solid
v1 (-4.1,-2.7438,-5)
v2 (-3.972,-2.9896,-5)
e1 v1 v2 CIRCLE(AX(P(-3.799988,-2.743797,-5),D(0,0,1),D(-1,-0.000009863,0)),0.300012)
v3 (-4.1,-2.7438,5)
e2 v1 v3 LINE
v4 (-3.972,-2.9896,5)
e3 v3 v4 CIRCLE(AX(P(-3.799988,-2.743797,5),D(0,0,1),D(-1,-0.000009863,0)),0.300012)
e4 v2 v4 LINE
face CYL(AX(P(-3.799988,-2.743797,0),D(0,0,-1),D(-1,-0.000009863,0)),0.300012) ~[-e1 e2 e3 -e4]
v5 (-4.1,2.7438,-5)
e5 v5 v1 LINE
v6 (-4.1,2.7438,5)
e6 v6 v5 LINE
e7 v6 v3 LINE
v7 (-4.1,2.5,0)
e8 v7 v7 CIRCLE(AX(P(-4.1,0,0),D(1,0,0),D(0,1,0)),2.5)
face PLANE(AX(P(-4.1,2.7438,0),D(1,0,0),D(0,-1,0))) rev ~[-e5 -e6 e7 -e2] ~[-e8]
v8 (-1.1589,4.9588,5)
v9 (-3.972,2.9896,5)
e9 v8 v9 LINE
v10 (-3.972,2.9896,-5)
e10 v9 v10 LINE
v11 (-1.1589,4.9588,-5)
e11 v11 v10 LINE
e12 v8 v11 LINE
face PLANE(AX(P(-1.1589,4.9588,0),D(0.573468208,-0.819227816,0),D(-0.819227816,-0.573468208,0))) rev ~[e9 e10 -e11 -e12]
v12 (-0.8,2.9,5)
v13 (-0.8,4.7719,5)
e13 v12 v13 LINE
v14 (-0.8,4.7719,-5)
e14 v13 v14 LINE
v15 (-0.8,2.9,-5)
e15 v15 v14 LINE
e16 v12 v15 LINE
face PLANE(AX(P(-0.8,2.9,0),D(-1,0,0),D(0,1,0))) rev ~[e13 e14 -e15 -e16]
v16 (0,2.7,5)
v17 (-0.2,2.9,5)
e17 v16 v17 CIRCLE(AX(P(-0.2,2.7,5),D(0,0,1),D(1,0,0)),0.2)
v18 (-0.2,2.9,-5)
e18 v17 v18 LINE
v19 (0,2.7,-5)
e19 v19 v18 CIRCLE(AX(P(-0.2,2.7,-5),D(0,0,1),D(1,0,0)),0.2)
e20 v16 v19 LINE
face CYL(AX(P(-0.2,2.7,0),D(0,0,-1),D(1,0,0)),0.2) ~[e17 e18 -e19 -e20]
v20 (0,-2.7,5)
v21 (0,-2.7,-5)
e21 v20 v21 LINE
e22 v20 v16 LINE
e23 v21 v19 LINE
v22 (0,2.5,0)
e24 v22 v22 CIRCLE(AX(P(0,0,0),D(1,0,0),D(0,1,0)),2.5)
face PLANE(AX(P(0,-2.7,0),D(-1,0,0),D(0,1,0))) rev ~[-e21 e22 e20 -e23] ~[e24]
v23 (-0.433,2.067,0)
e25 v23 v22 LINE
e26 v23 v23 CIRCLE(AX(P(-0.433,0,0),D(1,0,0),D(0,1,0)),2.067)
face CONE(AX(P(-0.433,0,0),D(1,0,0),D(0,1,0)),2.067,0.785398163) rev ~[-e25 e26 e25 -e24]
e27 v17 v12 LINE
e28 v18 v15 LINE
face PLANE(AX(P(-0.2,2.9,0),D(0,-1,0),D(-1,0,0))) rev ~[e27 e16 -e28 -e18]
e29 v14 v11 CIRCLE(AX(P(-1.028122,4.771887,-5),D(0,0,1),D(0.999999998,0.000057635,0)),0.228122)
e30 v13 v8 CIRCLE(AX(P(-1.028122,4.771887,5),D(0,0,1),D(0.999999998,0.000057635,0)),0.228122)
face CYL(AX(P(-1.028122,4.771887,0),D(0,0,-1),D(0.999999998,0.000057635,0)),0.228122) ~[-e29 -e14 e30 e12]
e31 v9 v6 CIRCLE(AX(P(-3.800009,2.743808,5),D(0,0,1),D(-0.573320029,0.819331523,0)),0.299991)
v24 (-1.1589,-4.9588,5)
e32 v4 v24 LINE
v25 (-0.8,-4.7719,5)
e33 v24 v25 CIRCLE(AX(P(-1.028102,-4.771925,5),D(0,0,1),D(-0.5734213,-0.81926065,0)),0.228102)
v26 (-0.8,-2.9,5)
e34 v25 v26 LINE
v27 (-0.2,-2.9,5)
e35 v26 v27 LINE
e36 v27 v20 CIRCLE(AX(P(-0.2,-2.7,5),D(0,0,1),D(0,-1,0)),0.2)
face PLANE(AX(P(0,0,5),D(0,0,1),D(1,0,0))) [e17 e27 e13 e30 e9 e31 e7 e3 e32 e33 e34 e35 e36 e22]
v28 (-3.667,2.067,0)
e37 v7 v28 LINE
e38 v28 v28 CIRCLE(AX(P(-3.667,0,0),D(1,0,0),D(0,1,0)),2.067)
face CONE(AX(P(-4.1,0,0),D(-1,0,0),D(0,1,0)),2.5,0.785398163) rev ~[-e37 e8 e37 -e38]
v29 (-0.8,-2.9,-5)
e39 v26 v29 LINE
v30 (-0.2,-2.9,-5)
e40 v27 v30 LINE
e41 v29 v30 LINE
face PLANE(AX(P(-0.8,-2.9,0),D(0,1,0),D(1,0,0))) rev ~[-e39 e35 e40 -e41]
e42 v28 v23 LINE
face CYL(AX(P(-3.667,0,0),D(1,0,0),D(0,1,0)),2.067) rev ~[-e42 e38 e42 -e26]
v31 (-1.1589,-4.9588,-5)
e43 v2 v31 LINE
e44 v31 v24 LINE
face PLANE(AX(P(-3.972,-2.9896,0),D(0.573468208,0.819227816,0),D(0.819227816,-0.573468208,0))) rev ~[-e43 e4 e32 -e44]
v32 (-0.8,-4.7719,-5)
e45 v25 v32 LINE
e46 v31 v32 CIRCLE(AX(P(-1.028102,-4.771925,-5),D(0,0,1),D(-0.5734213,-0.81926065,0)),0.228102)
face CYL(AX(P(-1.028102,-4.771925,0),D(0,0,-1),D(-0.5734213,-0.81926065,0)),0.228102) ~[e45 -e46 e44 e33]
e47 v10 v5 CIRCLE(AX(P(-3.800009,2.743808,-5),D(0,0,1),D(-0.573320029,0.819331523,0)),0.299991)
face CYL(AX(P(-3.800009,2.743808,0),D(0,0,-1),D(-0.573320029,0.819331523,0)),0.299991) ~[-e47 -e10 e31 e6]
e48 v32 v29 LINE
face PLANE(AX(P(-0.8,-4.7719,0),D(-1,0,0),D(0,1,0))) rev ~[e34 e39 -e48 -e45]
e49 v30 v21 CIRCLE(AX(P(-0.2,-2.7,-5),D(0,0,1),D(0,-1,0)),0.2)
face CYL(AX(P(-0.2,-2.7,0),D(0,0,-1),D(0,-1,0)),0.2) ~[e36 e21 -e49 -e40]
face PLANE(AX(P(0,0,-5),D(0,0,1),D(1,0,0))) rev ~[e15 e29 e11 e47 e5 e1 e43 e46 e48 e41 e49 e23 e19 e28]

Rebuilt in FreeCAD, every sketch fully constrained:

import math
import FreeCAD as App
import Part
import Sketcher

V = App.Vector

doc = App.newDocument("Part")
body = doc.addObject("PartDesign::Body", "Body")

sketch1 = body.newObject("Sketcher::SketchObject", "Sketch")
sketch1.AttachmentSupport = (doc.getObject("XY_Plane"), [""])
sketch1.MapMode = "FlatFace"
sketch1.addGeometry(Part.LineSegment(V(-4.1, 2.7438, 0), V(-4.1, -2.7438, 0)), False)
sketch1.addGeometry(Part.ArcOfCircle(Part.Circle(V(-3.8, -2.7438, 0), V(0, 0, 1), 0.3), math.radians(180), math.radians(235.017367)), False)
sketch1.addGeometry(Part.LineSegment(V(-3.972, -2.9896, 0), V(-1.1589, -4.9588, 0)), False)
sketch1.addGeometry(Part.ArcOfCircle(Part.Circle(V(-1.0281, -4.7719, 0), V(0, 0, 1), 0.228123), math.radians(-124.985847), math.radians(0)), False)
sketch1.addGeometry(Part.LineSegment(V(-0.8, -4.7719, 0), V(-0.8, -2.9, 0)), False)
sketch1.addGeometry(Part.LineSegment(V(-0.8, -2.9, 0), V(-0.2, -2.9, 0)), False)
sketch1.addGeometry(Part.ArcOfCircle(Part.Circle(V(-0.2, -2.7, 0), V(0, 0, 1), 0.2), math.radians(-90), math.radians(0)), False)
sketch1.addGeometry(Part.LineSegment(V(0, -2.7, 0), V(0, 2.7, 0)), False)
sketch1.addGeometry(Part.ArcOfCircle(Part.Circle(V(-0.2, 2.7, 0), V(0, 0, 1), 0.2), math.radians(0), math.radians(90)), False)
sketch1.addGeometry(Part.LineSegment(V(-0.2, 2.9, 0), V(-0.8, 2.9, 0)), False)
sketch1.addGeometry(Part.LineSegment(V(-0.8, 2.9, 0), V(-0.8, 4.7719, 0)), False)
sketch1.addGeometry(Part.ArcOfCircle(Part.Circle(V(-1.0281, 4.7719, 0), V(0, 0, 1), 0.2281), math.radians(0), math.radians(124.985847)), False)
sketch1.addGeometry(Part.LineSegment(V(-1.1589, 4.9588, 0), V(-3.972, 2.9896, 0)), False)
sketch1.addGeometry(Part.ArcOfCircle(Part.Circle(V(-3.8, 2.7438, 0), V(0, 0, 1), 0.300003), math.radians(124.982633), math.radians(180)), False)
sketch1.addConstraint(Sketcher.Constraint("Tangent", 0, 2, 1, 1))
sketch1.addConstraint(Sketcher.Constraint("Tangent", 1, 2, 2, 1))
sketch1.addConstraint(Sketcher.Constraint("Tangent", 2, 2, 3, 1))
sketch1.addConstraint(Sketcher.Constraint("Tangent", 3, 2, 4, 1))
sketch1.addConstraint(Sketcher.Constraint("Coincident", 4, 2, 5, 1))
sketch1.addConstraint(Sketcher.Constraint("Tangent", 5, 2, 6, 1))
sketch1.addConstraint(Sketcher.Constraint("Tangent", 6, 2, 7, 1))
sketch1.addConstraint(Sketcher.Constraint("Tangent", 7, 2, 8, 1))
sketch1.addConstraint(Sketcher.Constraint("Tangent", 8, 2, 9, 1))
sketch1.addConstraint(Sketcher.Constraint("Coincident", 9, 2, 10, 1))
sketch1.addConstraint(Sketcher.Constraint("Tangent", 10, 2, 11, 1))
sketch1.addConstraint(Sketcher.Constraint("Tangent", 11, 2, 12, 1))
sketch1.addConstraint(Sketcher.Constraint("Tangent", 12, 2, 13, 1))
sketch1.addConstraint(Sketcher.Constraint("Tangent", 13, 2, 0, 1))
sketch1.addConstraint(Sketcher.Constraint("Vertical", 0))
sketch1.addConstraint(Sketcher.Constraint("Vertical", 4))
sketch1.addConstraint(Sketcher.Constraint("Horizontal", 5))
sketch1.addConstraint(Sketcher.Constraint("Vertical", 7))
sketch1.addConstraint(Sketcher.Constraint("Horizontal", 9))
sketch1.addConstraint(Sketcher.Constraint("Vertical", 10))
sketch1.addConstraint(Sketcher.Constraint("Equal", 6, 8))
sketch1.addConstraint(Sketcher.Constraint("Equal", 3, 11))
sketch1.addConstraint(Sketcher.Constraint("Equal", 1, 13))
sketch1.addConstraint(Sketcher.Constraint("Symmetric", 6, 2, 7, 2, -1, 1))
sketch1.addConstraint(Sketcher.Constraint("Symmetric", 3, 3, 11, 3, -1))
sketch1.addConstraint(Sketcher.Constraint("Vertical", 2, 2, 11, 2))
sketch1.addConstraint(Sketcher.Constraint("Radius", 1, 0.3))
sketch1.addConstraint(Sketcher.Constraint("Radius", 6, 0.2))
sketch1.addConstraint(Sketcher.Constraint("DistanceX", 5, 1, 5, 2, 0.6))
sketch1.addConstraint(Sketcher.Constraint("DistanceY", 7, 1, 7, 2, 5.4))
sketch1.addConstraint(Sketcher.Constraint("Radius", 11, 0.228))
sketch1.addConstraint(Sketcher.Constraint("DistanceX", 1, 3, 3, 2, 3.0))
sketch1.addConstraint(Sketcher.Constraint("DistanceY", 4, 1, 4, 2, 1.872))
sketch1.addConstraint(Sketcher.Constraint("DistanceY", 0, 2, 0, 1, 5.4876))
pad1 = body.newObject("PartDesign::Pad", "Pad")
pad1.Profile = sketch1
pad1.Length = 10
pad1.Midplane = True

sketch2 = body.newObject("Sketcher::SketchObject", "Sketch001")
sketch2.AttachmentSupport = (doc.getObject("XY_Plane"), [""])
sketch2.MapMode = "FlatFace"
sketch2.addGeometry(Part.LineSegment(V(-4.1, 0, 0), V(0, 0, 0)), False)
sketch2.addGeometry(Part.LineSegment(V(0, 0, 0), V(0, 2.5, 0)), False)
sketch2.addGeometry(Part.LineSegment(V(0, 2.5, 0), V(-0.433, 2.067, 0)), False)
sketch2.addGeometry(Part.LineSegment(V(-0.433, 2.067, 0), V(-3.667, 2.067, 0)), False)
sketch2.addGeometry(Part.LineSegment(V(-3.667, 2.067, 0), V(-4.1, 2.5, 0)), False)
sketch2.addGeometry(Part.LineSegment(V(-4.1, 2.5, 0), V(-4.1, 0, 0)), False)
sketch2.addConstraint(Sketcher.Constraint("Coincident", 0, 2, 1, 1))
sketch2.addConstraint(Sketcher.Constraint("Coincident", 1, 2, 2, 1))
sketch2.addConstraint(Sketcher.Constraint("Coincident", 2, 2, 3, 1))
sketch2.addConstraint(Sketcher.Constraint("Coincident", 3, 2, 4, 1))
sketch2.addConstraint(Sketcher.Constraint("Coincident", 4, 2, 5, 1))
sketch2.addConstraint(Sketcher.Constraint("Coincident", 5, 2, 0, 1))
sketch2.addConstraint(Sketcher.Constraint("Horizontal", 0))
sketch2.addConstraint(Sketcher.Constraint("Vertical", 1))
sketch2.addConstraint(Sketcher.Constraint("Horizontal", 3))
sketch2.addConstraint(Sketcher.Constraint("Vertical", 5))
sketch2.addConstraint(Sketcher.Constraint("Coincident", 0, 2, -1, 1))
sketch2.addConstraint(Sketcher.Constraint("Perpendicular", 2, 4))
sketch2.addConstraint(Sketcher.Constraint("Horizontal", 1, 2, 4, 2))
sketch2.addConstraint(Sketcher.Constraint("Equal", 2, 4))
sketch2.addConstraint(Sketcher.Constraint("DistanceX", 0, 1, 0, 2, 4.1))
sketch2.addConstraint(Sketcher.Constraint("DistanceY", 1, 1, 1, 2, 2.5))
sketch2.addConstraint(Sketcher.Constraint("DistanceX", 3, 2, 3, 1, 3.234))
groove = body.newObject("PartDesign::Groove", "Groove")
groove.Profile = sketch2
groove.ReferenceAxis = (sketch2, ["H_Axis"])
groove.Angle = 360

doc.recompute()
